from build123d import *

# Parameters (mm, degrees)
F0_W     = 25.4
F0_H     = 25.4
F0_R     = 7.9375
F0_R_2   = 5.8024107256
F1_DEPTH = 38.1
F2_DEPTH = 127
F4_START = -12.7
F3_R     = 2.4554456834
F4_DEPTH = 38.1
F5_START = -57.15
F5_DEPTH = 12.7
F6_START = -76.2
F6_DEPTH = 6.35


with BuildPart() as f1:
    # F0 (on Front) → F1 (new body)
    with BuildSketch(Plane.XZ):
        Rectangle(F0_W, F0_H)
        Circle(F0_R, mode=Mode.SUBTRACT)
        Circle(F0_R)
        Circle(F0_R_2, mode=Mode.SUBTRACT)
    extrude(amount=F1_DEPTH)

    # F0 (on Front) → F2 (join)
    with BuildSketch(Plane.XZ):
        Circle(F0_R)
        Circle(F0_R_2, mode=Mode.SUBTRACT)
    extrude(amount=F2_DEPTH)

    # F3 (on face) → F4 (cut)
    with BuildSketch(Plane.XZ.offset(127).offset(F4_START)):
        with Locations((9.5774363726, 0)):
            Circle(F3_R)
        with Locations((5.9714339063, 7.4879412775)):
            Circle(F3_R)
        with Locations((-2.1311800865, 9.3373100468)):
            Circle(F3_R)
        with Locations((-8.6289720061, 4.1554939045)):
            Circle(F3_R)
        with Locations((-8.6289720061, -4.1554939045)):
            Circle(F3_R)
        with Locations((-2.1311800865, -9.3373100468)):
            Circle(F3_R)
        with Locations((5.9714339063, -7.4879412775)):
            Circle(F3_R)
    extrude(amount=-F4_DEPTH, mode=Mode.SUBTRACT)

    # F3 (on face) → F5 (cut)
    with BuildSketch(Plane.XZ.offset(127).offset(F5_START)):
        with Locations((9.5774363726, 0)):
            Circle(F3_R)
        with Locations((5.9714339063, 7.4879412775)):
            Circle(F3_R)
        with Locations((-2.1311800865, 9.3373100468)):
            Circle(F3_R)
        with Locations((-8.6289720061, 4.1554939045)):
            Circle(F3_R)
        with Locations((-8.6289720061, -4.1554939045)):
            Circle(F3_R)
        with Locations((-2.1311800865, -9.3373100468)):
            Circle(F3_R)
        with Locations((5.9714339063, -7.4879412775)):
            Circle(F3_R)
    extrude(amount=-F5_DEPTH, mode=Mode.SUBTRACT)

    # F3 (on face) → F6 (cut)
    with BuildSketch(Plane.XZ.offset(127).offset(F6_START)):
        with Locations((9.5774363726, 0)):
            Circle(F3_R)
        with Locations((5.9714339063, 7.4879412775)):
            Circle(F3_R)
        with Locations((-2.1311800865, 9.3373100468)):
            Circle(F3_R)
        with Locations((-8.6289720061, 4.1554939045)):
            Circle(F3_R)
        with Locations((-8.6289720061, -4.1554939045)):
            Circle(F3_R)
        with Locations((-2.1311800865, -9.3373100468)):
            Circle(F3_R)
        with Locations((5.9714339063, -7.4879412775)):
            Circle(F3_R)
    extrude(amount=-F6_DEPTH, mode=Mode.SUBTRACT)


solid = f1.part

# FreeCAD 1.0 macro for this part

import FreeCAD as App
import Part
import Sketcher
from FreeCAD import Vector
Q = App.Units.Quantity

doc = App.newDocument("Part")
params = doc.addObject("Spreadsheet::Sheet", "Params")
for row, (alias, value) in enumerate([
    ("sketch1_width", "1 in"),
    ("pad1_length", "1.5 in"),
    ("sketch2_diameter", "0.625 in"),
    ("pad2_length", "5 in"),
    ("pocket1_length", "1.5 in"),
    ("pocket2_length", "0.5 in"),
    ("pocket3_length", "0.25 in"),
], start=1):
    params.set(f"A{row}", alias)
    params.set(f"B{row}", "=" + value)
    params.setAlias(f"B{row}", alias)

body = doc.addObject("PartDesign::Body", "Body")

# Sketch on XZ plane
sketch1 = body.newObject("Sketcher::SketchObject", "Sketch")
sketch1.AttachmentSupport = (doc.getObject("XZ_Plane"), [""])
sketch1.MapMode = "FlatFace"
sketch1.addGeometry(Part.LineSegment(Vector(-13, 13, 0), Vector(-13, -13, 0)), False)
sketch1.addGeometry(Part.LineSegment(Vector(-13, -13, 0), Vector(13, -13, 0)), False)
sketch1.addGeometry(Part.LineSegment(Vector(13, -13, 0), Vector(13, 13, 0)), False)
sketch1.addGeometry(Part.LineSegment(Vector(13, 13, 0), Vector(-13, 13, 0)), False)
sketch1.addGeometry(Part.Circle(Vector(0, 0, 0), Vector(0, 0, 1), 6), False)
sketch1.addConstraint(Sketcher.Constraint("Coincident", 0, 2, 1, 1))
sketch1.addConstraint(Sketcher.Constraint("Coincident", 1, 2, 2, 1))
sketch1.addConstraint(Sketcher.Constraint("Coincident", 2, 2, 3, 1))
sketch1.addConstraint(Sketcher.Constraint("Coincident", 3, 2, 0, 1))
sketch1.addConstraint(Sketcher.Constraint("Vertical", 0))
sketch1.addConstraint(Sketcher.Constraint("Horizontal", 1))
sketch1.addConstraint(Sketcher.Constraint("Vertical", 2))
sketch1.addConstraint(Sketcher.Constraint("Horizontal", 3))
sketch1.addConstraint(Sketcher.Constraint("Coincident", 4, 3, -1, 1))
sketch1.addConstraint(Sketcher.Constraint("Symmetric", 0, 2, 2, 2, -1, 1))
sketch1.addConstraint(Sketcher.Constraint("Equal", 3, 0))
sketch1.addConstraint(Sketcher.Constraint("DistanceX", 1, 1, 1, 2, Q("1 in")))
sketch1.addConstraint(Sketcher.Constraint("Diameter", 4, 11.604821))
sketch1.setExpression("Constraints[11]", "Params.sketch1_width")
pad1 = body.newObject("PartDesign::Pad", "Pad")
pad1.Profile = sketch1
pad1.setExpression("Length", "Params.pad1_length")

# Sketch on XZ plane
sketch2 = body.newObject("Sketcher::SketchObject", "Sketch001")
sketch2.AttachmentSupport = (doc.getObject("XZ_Plane"), [""])
sketch2.MapMode = "FlatFace"
sketch2.addGeometry(Part.Circle(Vector(0, 0, 0), Vector(0, 0, 1), 8), False)
sketch2.addGeometry(Part.Circle(Vector(0, 0, 0), Vector(0, 0, 1), 6), False)
sketch2.addConstraint(Sketcher.Constraint("Coincident", 0, 3, -1, 1))
sketch2.addConstraint(Sketcher.Constraint("Coincident", 1, 3, -1, 1))
sketch2.addConstraint(Sketcher.Constraint("Diameter", 0, Q("0.625 in")))
sketch2.addConstraint(Sketcher.Constraint("Diameter", 1, 11.604821))
sketch2.setExpression("Constraints[2]", "Params.sketch2_diameter")
pad2 = body.newObject("PartDesign::Pad", "Pad001")
pad2.Profile = sketch2
pad2.setExpression("Length", "Params.pad2_length")

# Sketch on XZ plane
sketch3 = body.newObject("Sketcher::SketchObject", "Sketch002")
sketch3.AttachmentSupport = (doc.getObject("XZ_Plane"), [""])
sketch3.MapMode = "FlatFace"
sketch3.AttachmentOffset = App.Placement(Vector(0, 0, 4.5 * 25.4), App.Rotation())
sketch3.addGeometry(Part.Circle(Vector(9.6, 0, 0), Vector(0, 0, 1), 2.5), False)
sketch3.addGeometry(Part.Circle(Vector(6, 7.5, 0), Vector(0, 0, 1), 2.5), False)
sketch3.addGeometry(Part.Circle(Vector(-2.1, 9.3, 0), Vector(0, 0, 1), 2.5), False)
sketch3.addGeometry(Part.Circle(Vector(-8.6, 4.2, 0), Vector(0, 0, 1), 2.5), False)
sketch3.addGeometry(Part.Circle(Vector(-8.6, -4.2, 0), Vector(0, 0, 1), 2.5), False)
sketch3.addGeometry(Part.Circle(Vector(-2.1, -9.3, 0), Vector(0, 0, 1), 2.5), False)
sketch3.addGeometry(Part.Circle(Vector(6, -7.5, 0), Vector(0, 0, 1), 2.5), False)
sketch3.addConstraint(Sketcher.Constraint("Equal", 0, 1))
sketch3.addConstraint(Sketcher.Constraint("Equal", 1, 2))
sketch3.addConstraint(Sketcher.Constraint("Equal", 2, 3))
sketch3.addConstraint(Sketcher.Constraint("Equal", 3, 4))
sketch3.addConstraint(Sketcher.Constraint("Equal", 4, 5))
sketch3.addConstraint(Sketcher.Constraint("Equal", 5, 6))
sketch3.addConstraint(Sketcher.Constraint("Symmetric", 3, 3, 4, 3, -1))
sketch3.addConstraint(Sketcher.Constraint("Symmetric", 2, 3, 5, 3, -1))
sketch3.addConstraint(Sketcher.Constraint("Symmetric", 1, 3, 6, 3, -1))
sketch3.addConstraint(Sketcher.Constraint("PointOnObject", 0, 3, -1))
sketch3.addConstraint(Sketcher.Constraint("Diameter", 0, 4.910891))
sketch3.addConstraint(Sketcher.Constraint("DistanceY", -1, 1, 1, 3, 7.487941))
sketch3.addConstraint(Sketcher.Constraint("DistanceX", 2, 3, -1, 1, 2.13118))
sketch3.addConstraint(Sketcher.Constraint("DistanceY", -1, 1, 2, 3, 9.33731))
sketch3.addConstraint(Sketcher.Constraint("DistanceX", 3, 3, 2, 3, 6.497792))
sketch3.addConstraint(Sketcher.Constraint("DistanceX", 3, 3, 0, 3, 18.206408))
sketch3.addConstraint(Sketcher.Constraint("DistanceX", -1, 1, 1, 3, 5.971434))
sketch3.addConstraint(Sketcher.Constraint("DistanceY", -1, 1, 3, 3, 4.155494))
pocket1 = body.newObject("PartDesign::Pocket", "Pocket")
pocket1.Profile = sketch3
pocket1.setExpression("Length", "Params.pocket1_length")

# Sketch on XZ plane
sketch4 = body.newObject("Sketcher::SketchObject", "Sketch003")
sketch4.AttachmentSupport = (doc.getObject("XZ_Plane"), [""])
sketch4.MapMode = "FlatFace"
sketch4.AttachmentOffset = App.Placement(Vector(0, 0, 2.75 * 25.4), App.Rotation())
sketch4.addGeometry(Part.Circle(Vector(9.6, 0, 0), Vector(0, 0, 1), 2.5), False)
sketch4.addGeometry(Part.Circle(Vector(6, 7.5, 0), Vector(0, 0, 1), 2.5), False)
sketch4.addGeometry(Part.Circle(Vector(-2.1, 9.3, 0), Vector(0, 0, 1), 2.5), False)
sketch4.addGeometry(Part.Circle(Vector(-8.6, 4.2, 0), Vector(0, 0, 1), 2.5), False)
sketch4.addGeometry(Part.Circle(Vector(-8.6, -4.2, 0), Vector(0, 0, 1), 2.5), False)
sketch4.addGeometry(Part.Circle(Vector(-2.1, -9.3, 0), Vector(0, 0, 1), 2.5), False)
sketch4.addGeometry(Part.Circle(Vector(6, -7.5, 0), Vector(0, 0, 1), 2.5), False)
sketch4.addConstraint(Sketcher.Constraint("Equal", 0, 1))
sketch4.addConstraint(Sketcher.Constraint("Equal", 1, 2))
sketch4.addConstraint(Sketcher.Constraint("Equal", 2, 3))
sketch4.addConstraint(Sketcher.Constraint("Equal", 3, 4))
sketch4.addConstraint(Sketcher.Constraint("Equal", 4, 5))
sketch4.addConstraint(Sketcher.Constraint("Equal", 5, 6))
sketch4.addConstraint(Sketcher.Constraint("Symmetric", 3, 3, 4, 3, -1))
sketch4.addConstraint(Sketcher.Constraint("Symmetric", 2, 3, 5, 3, -1))
sketch4.addConstraint(Sketcher.Constraint("Symmetric", 1, 3, 6, 3, -1))
sketch4.addConstraint(Sketcher.Constraint("PointOnObject", 0, 3, -1))
sketch4.addConstraint(Sketcher.Constraint("Diameter", 0, 4.910891))
sketch4.addConstraint(Sketcher.Constraint("DistanceY", -1, 1, 1, 3, 7.487941))
sketch4.addConstraint(Sketcher.Constraint("DistanceX", 2, 3, -1, 1, 2.13118))
sketch4.addConstraint(Sketcher.Constraint("DistanceY", -1, 1, 2, 3, 9.33731))
sketch4.addConstraint(Sketcher.Constraint("DistanceX", 3, 3, 2, 3, 6.497792))
sketch4.addConstraint(Sketcher.Constraint("DistanceX", 3, 3, 0, 3, 18.206408))
sketch4.addConstraint(Sketcher.Constraint("DistanceX", -1, 1, 1, 3, 5.971434))
sketch4.addConstraint(Sketcher.Constraint("DistanceY", -1, 1, 3, 3, 4.155494))
pocket2 = body.newObject("PartDesign::Pocket", "Pocket001")
pocket2.Profile = sketch4
pocket2.setExpression("Length", "Params.pocket2_length")

# Sketch on XZ plane
sketch5 = body.newObject("Sketcher::SketchObject", "Sketch004")
sketch5.AttachmentSupport = (doc.getObject("XZ_Plane"), [""])
sketch5.MapMode = "FlatFace"
sketch5.AttachmentOffset = App.Placement(Vector(0, 0, 2 * 25.4), App.Rotation())
sketch5.addGeometry(Part.Circle(Vector(9.6, 0, 0), Vector(0, 0, 1), 2.5), False)
sketch5.addGeometry(Part.Circle(Vector(6, 7.5, 0), Vector(0, 0, 1), 2.5), False)
sketch5.addGeometry(Part.Circle(Vector(-2.1, 9.3, 0), Vector(0, 0, 1), 2.5), False)
sketch5.addGeometry(Part.Circle(Vector(-8.6, 4.2, 0), Vector(0, 0, 1), 2.5), False)
sketch5.addGeometry(Part.Circle(Vector(-8.6, -4.2, 0), Vector(0, 0, 1), 2.5), False)
sketch5.addGeometry(Part.Circle(Vector(-2.1, -9.3, 0), Vector(0, 0, 1), 2.5), False)
sketch5.addGeometry(Part.Circle(Vector(6, -7.5, 0), Vector(0, 0, 1), 2.5), False)
sketch5.addConstraint(Sketcher.Constraint("Equal", 0, 1))
sketch5.addConstraint(Sketcher.Constraint("Equal", 1, 2))
sketch5.addConstraint(Sketcher.Constraint("Equal", 2, 3))
sketch5.addConstraint(Sketcher.Constraint("Equal", 3, 4))
sketch5.addConstraint(Sketcher.Constraint("Equal", 4, 5))
sketch5.addConstraint(Sketcher.Constraint("Equal", 5, 6))
sketch5.addConstraint(Sketcher.Constraint("Symmetric", 3, 3, 4, 3, -1))
sketch5.addConstraint(Sketcher.Constraint("Symmetric", 2, 3, 5, 3, -1))
sketch5.addConstraint(Sketcher.Constraint("Symmetric", 1, 3, 6, 3, -1))
sketch5.addConstraint(Sketcher.Constraint("PointOnObject", 0, 3, -1))
sketch5.addConstraint(Sketcher.Constraint("Diameter", 0, 4.910891))
sketch5.addConstraint(Sketcher.Constraint("DistanceY", -1, 1, 1, 3, 7.487941))
sketch5.addConstraint(Sketcher.Constraint("DistanceX", 2, 3, -1, 1, 2.13118))
sketch5.addConstraint(Sketcher.Constraint("DistanceY", -1, 1, 2, 3, 9.33731))
sketch5.addConstraint(Sketcher.Constraint("DistanceX", 3, 3, 2, 3, 6.497792))
sketch5.addConstraint(Sketcher.Constraint("DistanceX", 3, 3, 0, 3, 18.206408))
sketch5.addConstraint(Sketcher.Constraint("DistanceX", -1, 1, 1, 3, 5.971434))
sketch5.addConstraint(Sketcher.Constraint("DistanceY", -1, 1, 3, 3, 4.155494))
pocket3 = body.newObject("PartDesign::Pocket", "Pocket002")
pocket3.Profile = sketch5
pocket3.setExpression("Length", "Params.pocket3_length")

doc.recompute()
